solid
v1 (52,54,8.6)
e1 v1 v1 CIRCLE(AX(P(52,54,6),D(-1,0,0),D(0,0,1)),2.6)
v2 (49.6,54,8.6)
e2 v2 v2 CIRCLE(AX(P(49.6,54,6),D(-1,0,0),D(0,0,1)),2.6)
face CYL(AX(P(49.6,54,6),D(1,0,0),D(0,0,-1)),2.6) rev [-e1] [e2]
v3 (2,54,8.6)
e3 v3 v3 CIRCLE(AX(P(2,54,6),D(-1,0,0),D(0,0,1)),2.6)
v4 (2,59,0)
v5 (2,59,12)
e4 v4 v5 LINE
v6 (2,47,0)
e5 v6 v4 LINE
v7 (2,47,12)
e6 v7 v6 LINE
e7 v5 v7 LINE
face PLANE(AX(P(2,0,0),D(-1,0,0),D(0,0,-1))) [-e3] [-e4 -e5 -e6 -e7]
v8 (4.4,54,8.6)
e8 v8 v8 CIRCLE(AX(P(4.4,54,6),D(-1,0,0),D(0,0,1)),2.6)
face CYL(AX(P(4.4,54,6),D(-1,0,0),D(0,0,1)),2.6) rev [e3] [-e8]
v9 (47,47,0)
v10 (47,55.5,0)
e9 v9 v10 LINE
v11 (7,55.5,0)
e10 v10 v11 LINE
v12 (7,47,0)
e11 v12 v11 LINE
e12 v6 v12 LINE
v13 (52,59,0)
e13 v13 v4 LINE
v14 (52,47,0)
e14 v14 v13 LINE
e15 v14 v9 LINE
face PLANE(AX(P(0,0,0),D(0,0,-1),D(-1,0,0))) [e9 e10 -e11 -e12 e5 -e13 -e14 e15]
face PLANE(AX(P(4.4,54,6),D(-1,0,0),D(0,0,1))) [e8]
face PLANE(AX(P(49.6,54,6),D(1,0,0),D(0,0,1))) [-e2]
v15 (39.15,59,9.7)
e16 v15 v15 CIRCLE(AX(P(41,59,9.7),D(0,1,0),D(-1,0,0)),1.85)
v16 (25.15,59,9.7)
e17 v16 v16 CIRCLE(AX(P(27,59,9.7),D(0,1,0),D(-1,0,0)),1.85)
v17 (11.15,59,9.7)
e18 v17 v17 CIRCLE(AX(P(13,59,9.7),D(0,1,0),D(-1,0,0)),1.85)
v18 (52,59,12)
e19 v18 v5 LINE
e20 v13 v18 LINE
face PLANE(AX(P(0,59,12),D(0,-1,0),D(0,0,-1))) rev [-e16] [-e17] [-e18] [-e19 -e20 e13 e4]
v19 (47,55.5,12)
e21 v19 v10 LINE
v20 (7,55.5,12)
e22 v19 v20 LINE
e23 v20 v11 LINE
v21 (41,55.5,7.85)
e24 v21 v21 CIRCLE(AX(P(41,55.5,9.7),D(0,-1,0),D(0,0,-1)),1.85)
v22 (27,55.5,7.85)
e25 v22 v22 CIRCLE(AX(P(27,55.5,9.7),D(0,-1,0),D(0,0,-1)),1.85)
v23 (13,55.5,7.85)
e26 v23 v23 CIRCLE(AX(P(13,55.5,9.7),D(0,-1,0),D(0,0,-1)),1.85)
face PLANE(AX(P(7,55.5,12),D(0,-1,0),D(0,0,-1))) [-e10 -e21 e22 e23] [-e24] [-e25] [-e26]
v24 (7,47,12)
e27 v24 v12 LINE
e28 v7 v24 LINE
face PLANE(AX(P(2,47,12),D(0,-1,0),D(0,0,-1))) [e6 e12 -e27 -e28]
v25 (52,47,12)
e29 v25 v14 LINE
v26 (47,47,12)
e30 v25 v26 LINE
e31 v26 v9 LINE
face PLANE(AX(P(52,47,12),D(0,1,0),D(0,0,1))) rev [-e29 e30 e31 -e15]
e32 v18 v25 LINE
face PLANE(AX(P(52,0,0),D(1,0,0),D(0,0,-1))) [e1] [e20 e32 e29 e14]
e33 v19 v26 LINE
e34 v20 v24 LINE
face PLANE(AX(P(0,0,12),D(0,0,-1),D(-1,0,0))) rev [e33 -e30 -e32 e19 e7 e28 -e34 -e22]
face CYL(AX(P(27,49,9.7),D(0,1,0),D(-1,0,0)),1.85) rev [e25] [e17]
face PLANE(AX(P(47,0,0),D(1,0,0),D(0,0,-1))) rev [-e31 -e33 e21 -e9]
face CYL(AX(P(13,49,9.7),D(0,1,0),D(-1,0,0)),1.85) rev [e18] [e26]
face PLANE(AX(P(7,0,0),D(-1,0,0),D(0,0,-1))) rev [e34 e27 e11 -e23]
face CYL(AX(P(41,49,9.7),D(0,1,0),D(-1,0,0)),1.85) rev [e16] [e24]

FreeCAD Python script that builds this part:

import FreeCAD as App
import Part
import Sketcher
from FreeCAD import Vector
Q = App.Units.Quantity

doc = App.newDocument("Part")
params = doc.addObject("Spreadsheet::Sheet", "Params")
for row, (alias, value) in enumerate([
    ("sketch1_width", "54 mm"),
    ("sketch1_width2", "40 mm"),
    ("sketch1_height", "59 mm"),
    ("sketch1_height2", "52 mm"),
    ("pad1_length", "12 mm"),
    ("sketch2_diameter", "3.7 mm"),
    ("pocket1_length", "10 mm"),
    ("sketch3_diameter", "3.7 mm"),
    ("pocket2_length", "10 mm"),
    ("sketch4_width", "54 mm"),
    ("sketch4_height", "12 mm"),
    ("pocket3_length", "40 mm"),
    ("sketch5_width", "7 mm"),
    ("sketch5_height", "12 mm"),
    ("pocket4_length", "40 mm"),
    ("sketch6_width", "12 mm"),
    ("pad2_length", "5 mm"),
    ("sketch7_diameter", "5.2 mm"),
    ("pocket5_length", "2.4 mm"),
], start=1):
    params.set(f"A{row}", alias)
    params.set(f"B{row}", "=" + value)
    params.setAlias(f"B{row}", alias)

body = doc.addObject("PartDesign::Body", "Body")

sketch1 = doc.addObject("Sketcher::SketchObject", "Sketch")
body.addObject(sketch1)
sketch1.AttachmentSupport = (doc.XY_Plane, [""])
sketch1.MapMode = "FlatFace"
sketch1.addGeometry(Part.LineSegment(Vector(0, 59, 0), Vector(0, 0, 0)), False)
sketch1.addGeometry(Part.LineSegment(Vector(0, 0, 0), Vector(54, 0, 0)), False)
sketch1.addGeometry(Part.LineSegment(Vector(54, 0, 0), Vector(54, 59, 0)), False)
sketch1.addGeometry(Part.LineSegment(Vector(54, 59, 0), Vector(0, 59, 0)), False)
sketch1.addGeometry(Part.LineSegment(Vector(47, 4, 0), Vector(7, 4, 0)), False)
sketch1.addGeometry(Part.LineSegment(Vector(7, 4, 0), Vector(7, 56, 0)), False)
sketch1.addGeometry(Part.LineSegment(Vector(7, 56, 0), Vector(47, 56, 0)), False)
sketch1.addGeometry(Part.LineSegment(Vector(47, 56, 0), Vector(47, 4, 0)), False)
sketch1.addConstraint(Sketcher.Constraint("Coincident", 0, 2, 1, 1))
sketch1.addConstraint(Sketcher.Constraint("Coincident", 1, 2, 2, 1))
sketch1.addConstraint(Sketcher.Constraint("Coincident", 2, 2, 3, 1))
sketch1.addConstraint(Sketcher.Constraint("Coincident", 3, 2, 0, 1))
sketch1.addConstraint(Sketcher.Constraint("Coincident", 4, 2, 5, 1))
sketch1.addConstraint(Sketcher.Constraint("Coincident", 5, 2, 6, 1))
sketch1.addConstraint(Sketcher.Constraint("Coincident", 6, 2, 7, 1))
sketch1.addConstraint(Sketcher.Constraint("Coincident", 7, 2, 4, 1))
sketch1.addConstraint(Sketcher.Constraint("Vertical", 0))
sketch1.addConstraint(Sketcher.Constraint("Horizontal", 1))
sketch1.addConstraint(Sketcher.Constraint("Vertical", 2))
sketch1.addConstraint(Sketcher.Constraint("Horizontal", 3))
sketch1.addConstraint(Sketcher.Constraint("Horizontal", 4))
sketch1.addConstraint(Sketcher.Constraint("Vertical", 5))
sketch1.addConstraint(Sketcher.Constraint("Horizontal", 6))
sketch1.addConstraint(Sketcher.Constraint("Vertical", 7))
sketch1.addConstraint(Sketcher.Constraint("Coincident", 0, 2, -1, 1))
sketch1.addConstraint(Sketcher.Constraint("DistanceX", 1, 1, 1, 2, Q("54 mm")))
sketch1.addConstraint(Sketcher.Constraint("DistanceX", 4, 2, 4, 1, Q("40 mm")))
sketch1.addConstraint(Sketcher.Constraint("DistanceY", 0, 2, 0, 1, Q("59 mm")))
sketch1.addConstraint(Sketcher.Constraint("DistanceY", 5, 1, 5, 2, Q("52 mm")))
sketch1.addConstraint(Sketcher.Constraint("DistanceX", -1, 1, 4, 2, Q("7 mm")))
sketch1.addConstraint(Sketcher.Constraint("DistanceY", -1, 1, 4, 2, Q("3.5 mm")))
sketch1.setExpression("Constraints[17]", "Params.sketch1_width")
sketch1.setExpression("Constraints[18]", "Params.sketch1_width2")
sketch1.setExpression("Constraints[19]", "Params.sketch1_height")
sketch1.setExpression("Constraints[20]", "Params.sketch1_height2")
pad1 = doc.addObject("PartDesign::Pad", "Pad")
body.addObject(pad1)
pad1.Profile = sketch1
pad1.setExpression("Length", "Params.pad1_length")

sketch2 = doc.addObject("Sketcher::SketchObject", "Sketch001")
body.addObject(sketch2)
sketch2.AttachmentSupport = (doc.XZ_Plane, [""])
sketch2.MapMode = "FlatFace"
sketch2.AttachmentOffset = App.Placement(Vector(0, 0, -59), App.Rotation())
sketch2.addGeometry(Part.Circle(Vector(13, 9.7, 0), Vector(0, 0, 1), 1.9), False)
sketch2.addGeometry(Part.Circle(Vector(41, 9.7, 0), Vector(0, 0, 1), 1.9), False)
sketch2.addGeometry(Part.Circle(Vector(27, 9.7, 0), Vector(0, 0, 1), 1.9), False)
sketch2.addConstraint(Sketcher.Constraint("Equal", 0, 1))
sketch2.addConstraint(Sketcher.Constraint("Equal", 1, 2))
sketch2.addConstraint(Sketcher.Constraint("Horizontal", 0, 3, 1, 3))
sketch2.addConstraint(Sketcher.Constraint("Horizontal", 1, 3, 2, 3))
sketch2.addConstraint(Sketcher.Constraint("Diameter", 0, Q("3.7 mm")))
sketch2.addConstraint(Sketcher.Constraint("DistanceX", -1, 1, 0, 3, Q("13 mm")))
sketch2.addConstraint(Sketcher.Constraint("DistanceX", -1, 1, 1, 3, Q("41 mm")))
sketch2.addConstraint(Sketcher.Constraint("DistanceX", -1, 1, 2, 3, Q("27 mm")))
sketch2.addConstraint(Sketcher.Constraint("DistanceY", -1, 1, 0, 3, Q("9.7 mm")))
sketch2.setExpression("Constraints[4]", "Params.sketch2_diameter")
pocket1 = doc.addObject("PartDesign::Pocket", "Pocket")
body.addObject(pocket1)
pocket1.Profile = sketch2
pocket1.setExpression("Length", "Params.pocket1_length")
pocket1.Reversed = True

sketch3 = doc.addObject("Sketcher::SketchObject", "Sketch002")
body.addObject(sketch3)
sketch3.AttachmentSupport = (doc.XZ_Plane, [""])
sketch3.MapMode = "FlatFace"
sketch3.addGeometry(Part.Circle(Vector(12.8, 6, 0), Vector(0, 0, 1), 1.9), False)
sketch3.addGeometry(Part.Circle(Vector(41.2, 6, 0), Vector(0, 0, 1), 1.9), False)
sketch3.addConstraint(Sketcher.Constraint("Equal", 0, 1))
sketch3.addConstraint(Sketcher.Constraint("Horizontal", 0, 3, 1, 3))
sketch3.addConstraint(Sketcher.Constraint("Diameter", 0, Q("3.7 mm")))
sketch3.addConstraint(Sketcher.Constraint("DistanceY", -1, 1, 0, 3, Q("6 mm")))
sketch3.addConstraint(Sketcher.Constraint("DistanceX", 0, 3, 1, 3, Q("28.5 mm")))
sketch3.addConstraint(Sketcher.Constraint("DistanceX", -1, 1, 0, 3, Q("12.75 mm")))
sketch3.setExpression("Constraints[2]", "Params.sketch3_diameter")
pocket2 = doc.addObject("PartDesign::Pocket", "Pocket001")
body.addObject(pocket2)
pocket2.Profile = sketch3
pocket2.setExpression("Length", "Params.pocket2_length")

sketch4 = doc.addObject("Sketcher::SketchObject", "Sketch003")
body.addObject(sketch4)
sketch4.AttachmentSupport = (doc.XZ_Plane, [""])
sketch4.MapMode = "FlatFace"
sketch4.addGeometry(Part.LineSegment(Vector(0, 12, 0), Vector(0, 0, 0)), False)
sketch4.addGeometry(Part.LineSegment(Vector(0, 0, 0), Vector(54, 0, 0)), False)
sketch4.addGeometry(Part.LineSegment(Vector(54, 0, 0), Vector(54, 12, 0)), False)
sketch4.addGeometry(Part.LineSegment(Vector(54, 12, 0), Vector(0, 12, 0)), False)
sketch4.addConstraint(Sketcher.Constraint("Coincident", 0, 2, 1, 1))
sketch4.addConstraint(Sketcher.Constraint("Coincident", 1, 2, 2, 1))
sketch4.addConstraint(Sketcher.Constraint("Coincident", 2, 2, 3, 1))
sketch4.addConstraint(Sketcher.Constraint("Coincident", 3, 2, 0, 1))
sketch4.addConstraint(Sketcher.Constraint("Vertical", 0))
sketch4.addConstraint(Sketcher.Constraint("Horizontal", 1))
sketch4.addConstraint(Sketcher.Constraint("Vertical", 2))
sketch4.addConstraint(Sketcher.Constraint("Horizontal", 3))
sketch4.addConstraint(Sketcher.Constraint("Coincident", 0, 2, -1, 1))
sketch4.addConstraint(Sketcher.Constraint("DistanceX", 1, 1, 1, 2, Q("54 mm")))
sketch4.addConstraint(Sketcher.Constraint("DistanceY", 0, 2, 0, 1, Q("12 mm")))
sketch4.setExpression("Constraints[9]", "Params.sketch4_width")
sketch4.setExpression("Constraints[10]", "Params.sketch4_height")
pocket3 = doc.addObject("PartDesign::Pocket", "Pocket002")
body.addObject(pocket3)
pocket3.Profile = sketch4
pocket3.setExpression("Length", "Params.pocket3_length")

sketch5 = doc.addObject("Sketcher::SketchObject", "Sketch004")
body.addObject(sketch5)
sketch5.AttachmentSupport = (doc.XZ_Plane, [""])
sketch5.MapMode = "FlatFace"
sketch5.AttachmentOffset = App.Placement(Vector(0, 0, -40), App.Rotation())
sketch5.addGeometry(Part.LineSegment(Vector(0, 12, 0), Vector(0, 0, 0)), False)
sketch5.addGeometry(Part.LineSegment(Vector(0, 0, 0), Vector(7, 0, 0)), False)
sketch5.addGeometry(Part.LineSegment(Vector(7, 0, 0), Vector(7, 12, 0)), False)
sketch5.addGeometry(Part.LineSegment(Vector(7, 12, 0), Vector(0, 12, 0)), False)
sketch5.addGeometry(Part.LineSegment(Vector(47, 12, 0), Vector(47, 0, 0)), False)
sketch5.addGeometry(Part.LineSegment(Vector(47, 0, 0), Vector(54, 0, 0)), False)
sketch5.addGeometry(Part.LineSegment(Vector(54, 0, 0), Vector(54, 12, 0)), False)
sketch5.addGeometry(Part.LineSegment(Vector(54, 12, 0), Vector(47, 12, 0)), False)
sketch5.addConstraint(Sketcher.Constraint("Coincident", 0, 2, 1, 1))
sketch5.addConstraint(Sketcher.Constraint("Coincident", 1, 2, 2, 1))
sketch5.addConstraint(Sketcher.Constraint("Coincident", 2, 2, 3, 1))
sketch5.addConstraint(Sketcher.Constraint("Coincident", 3, 2, 0, 1))
sketch5.addConstraint(Sketcher.Constraint("Coincident", 4, 2, 5, 1))
sketch5.addConstraint(Sketcher.Constraint("Coincident", 5, 2, 6, 1))
sketch5.addConstraint(Sketcher.Constraint("Coincident", 6, 2, 7, 1))
sketch5.addConstraint(Sketcher.Constraint("Coincident", 7, 2, 4, 1))
sketch5.addConstraint(Sketcher.Constraint("Vertical", 0))
sketch5.addConstraint(Sketcher.Constraint("Horizontal", 1))
sketch5.addConstraint(Sketcher.Constraint("Vertical", 2))
sketch5.addConstraint(Sketcher.Constraint("Horizontal", 3))
sketch5.addConstraint(Sketcher.Constraint("Vertical", 4))
sketch5.addConstraint(Sketcher.Constraint("Horizontal", 5))
sketch5.addConstraint(Sketcher.Constraint("Vertical", 6))
sketch5.addConstraint(Sketcher.Constraint("Horizontal", 7))
sketch5.addConstraint(Sketcher.Constraint("Coincident", 0, 2, -1, 1))
sketch5.addConstraint(Sketcher.Constraint("PointOnObject", 4, 2, -1))
sketch5.addConstraint(Sketcher.Constraint("Horizontal", 3, 2, 6, 2))
sketch5.addConstraint(Sketcher.Constraint("Equal", 3, 5))
sketch5.addConstraint(Sketcher.Constraint("DistanceX", 1, 1, 1, 2, Q("7 mm")))
sketch5.addConstraint(Sketcher.Constraint("DistanceY", 0, 2, 0, 1, Q("12 mm")))
sketch5.addConstraint(Sketcher.Constraint("DistanceX", -1, 1, 4, 2, Q("47 mm")))
sketch5.setExpression("Constraints[20]", "Params.sketch5_width")
sketch5.setExpression("Constraints[21]", "Params.sketch5_height")
pocket4 = doc.addObject("PartDesign::Pocket", "Pocket003")
body.addObject(pocket4)
pocket4.Profile = sketch5
pocket4.setExpression("Length", "Params.pocket4_length")

sketch6 = doc.addObject("Sketcher::SketchObject", "Sketch005")
body.addObject(sketch6)
sketch6.AttachmentSupport = (doc.YZ_Plane, [""])
sketch6.MapMode = "FlatFace"
sketch6.AttachmentOffset = App.Placement(Vector(0, 0, 47), App.Rotation())
sketch6.addGeometry(Part.LineSegment(Vector(59, 12, 0), Vector(47, 12, 0)), False)
sketch6.addGeometry(Part.LineSegment(Vector(47, 12, 0), Vector(47, 0, 0)), False)
sketch6.addGeometry(Part.LineSegment(Vector(47, 0, 0), Vector(59, 0, 0)), False)
sketch6.addGeometry(Part.LineSegment(Vector(59, 0, 0), Vector(59, 12, 0)), False)
sketch6.addConstraint(Sketcher.Constraint("Coincident", 0, 2, 1, 1))
sketch6.addConstraint(Sketcher.Constraint("Coincident", 1, 2, 2, 1))
sketch6.addConstraint(Sketcher.Constraint("Coincident", 2, 2, 3, 1))
sketch6.addConstraint(Sketcher.Constraint("Coincident", 3, 2, 0, 1))
sketch6.addConstraint(Sketcher.Constraint("Horizontal", 0))
sketch6.addConstraint(Sketcher.Constraint("Vertical", 1))
sketch6.addConstraint(Sketcher.Constraint("Horizontal", 2))
sketch6.addConstraint(Sketcher.Constraint("Vertical", 3))
sketch6.addConstraint(Sketcher.Constraint("PointOnObject", 1, 2, -1))
sketch6.addConstraint(Sketcher.Constraint("Equal", 2, 1))
sketch6.addConstraint(Sketcher.Constraint("DistanceX", 0, 2, 0, 1, Q("12 mm")))
sketch6.addConstraint(Sketcher.Constraint("DistanceX", -1, 1, 0, 2, Q("47 mm")))
sketch6.setExpression("Constraints[10]", "Params.sketch6_width")
pad2 = doc.addObject("PartDesign::Pad", "Pad001")
body.addObject(pad2)
pad2.Profile = sketch6
pad2.setExpression("Length", "Params.pad2_length")
doc.recompute()

datumplane = doc.addObject("PartDesign::Plane", "DatumPlane")
body.addObject(datumplane)
datumplane.AttachmentSupport = (doc.YZ_Plane, [""])
datumplane.MapMode = "FlatFace"
datumplane.AttachmentOffset = App.Placement(Vector(0, 0, 27), App.Rotation())
mirrored = doc.addObject("PartDesign::Mirrored", "Mirrored")
body.addObject(mirrored)
mirrored.Originals = [pad2]
mirrored.MirrorPlane = (datumplane, [""])
body.Tip = mirrored

sketch7 = doc.addObject("Sketcher::SketchObject", "Sketch006")
body.addObject(sketch7)
sketch7.AttachmentSupport = (doc.YZ_Plane, [""])
sketch7.MapMode = "FlatFace"
sketch7.AttachmentOffset = App.Placement(Vector(0, 0, 2), App.Rotation())
sketch7.addGeometry(Part.Circle(Vector(54, 6, 0), Vector(0, 0, 1), 2.6), False)
sketch7.addConstraint(Sketcher.Constraint("Diameter", 0, Q("5.2 mm")))
sketch7.addConstraint(Sketcher.Constraint("DistanceX", -1, 1, 0, 3, Q("54 mm")))
sketch7.addConstraint(Sketcher.Constraint("DistanceY", -1, 1, 0, 3, Q("6 mm")))
sketch7.setExpression("Constraints[0]", "Params.sketch7_diameter")
pocket5 = doc.addObject("PartDesign::Pocket", "Pocket004")
body.addObject(pocket5)
pocket5.Profile = sketch7
pocket5.setExpression("Length", "Params.pocket5_length")
pocket5.Reversed = True
doc.recompute()

datumplane2 = doc.addObject("PartDesign::Plane", "DatumPlane001")
body.addObject(datumplane2)
datumplane2.AttachmentSupport = (doc.YZ_Plane, [""])
datumplane2.MapMode = "FlatFace"
datumplane2.AttachmentOffset = App.Placement(Vector(0, 0, 27), App.Rotation())
mirrored2 = doc.addObject("PartDesign::Mirrored", "Mirrored001")
body.addObject(mirrored2)
mirrored2.Originals = [pocket5]
mirrored2.MirrorPlane = (datumplane2, [""])
body.Tip = mirrored2

doc.recompute()
